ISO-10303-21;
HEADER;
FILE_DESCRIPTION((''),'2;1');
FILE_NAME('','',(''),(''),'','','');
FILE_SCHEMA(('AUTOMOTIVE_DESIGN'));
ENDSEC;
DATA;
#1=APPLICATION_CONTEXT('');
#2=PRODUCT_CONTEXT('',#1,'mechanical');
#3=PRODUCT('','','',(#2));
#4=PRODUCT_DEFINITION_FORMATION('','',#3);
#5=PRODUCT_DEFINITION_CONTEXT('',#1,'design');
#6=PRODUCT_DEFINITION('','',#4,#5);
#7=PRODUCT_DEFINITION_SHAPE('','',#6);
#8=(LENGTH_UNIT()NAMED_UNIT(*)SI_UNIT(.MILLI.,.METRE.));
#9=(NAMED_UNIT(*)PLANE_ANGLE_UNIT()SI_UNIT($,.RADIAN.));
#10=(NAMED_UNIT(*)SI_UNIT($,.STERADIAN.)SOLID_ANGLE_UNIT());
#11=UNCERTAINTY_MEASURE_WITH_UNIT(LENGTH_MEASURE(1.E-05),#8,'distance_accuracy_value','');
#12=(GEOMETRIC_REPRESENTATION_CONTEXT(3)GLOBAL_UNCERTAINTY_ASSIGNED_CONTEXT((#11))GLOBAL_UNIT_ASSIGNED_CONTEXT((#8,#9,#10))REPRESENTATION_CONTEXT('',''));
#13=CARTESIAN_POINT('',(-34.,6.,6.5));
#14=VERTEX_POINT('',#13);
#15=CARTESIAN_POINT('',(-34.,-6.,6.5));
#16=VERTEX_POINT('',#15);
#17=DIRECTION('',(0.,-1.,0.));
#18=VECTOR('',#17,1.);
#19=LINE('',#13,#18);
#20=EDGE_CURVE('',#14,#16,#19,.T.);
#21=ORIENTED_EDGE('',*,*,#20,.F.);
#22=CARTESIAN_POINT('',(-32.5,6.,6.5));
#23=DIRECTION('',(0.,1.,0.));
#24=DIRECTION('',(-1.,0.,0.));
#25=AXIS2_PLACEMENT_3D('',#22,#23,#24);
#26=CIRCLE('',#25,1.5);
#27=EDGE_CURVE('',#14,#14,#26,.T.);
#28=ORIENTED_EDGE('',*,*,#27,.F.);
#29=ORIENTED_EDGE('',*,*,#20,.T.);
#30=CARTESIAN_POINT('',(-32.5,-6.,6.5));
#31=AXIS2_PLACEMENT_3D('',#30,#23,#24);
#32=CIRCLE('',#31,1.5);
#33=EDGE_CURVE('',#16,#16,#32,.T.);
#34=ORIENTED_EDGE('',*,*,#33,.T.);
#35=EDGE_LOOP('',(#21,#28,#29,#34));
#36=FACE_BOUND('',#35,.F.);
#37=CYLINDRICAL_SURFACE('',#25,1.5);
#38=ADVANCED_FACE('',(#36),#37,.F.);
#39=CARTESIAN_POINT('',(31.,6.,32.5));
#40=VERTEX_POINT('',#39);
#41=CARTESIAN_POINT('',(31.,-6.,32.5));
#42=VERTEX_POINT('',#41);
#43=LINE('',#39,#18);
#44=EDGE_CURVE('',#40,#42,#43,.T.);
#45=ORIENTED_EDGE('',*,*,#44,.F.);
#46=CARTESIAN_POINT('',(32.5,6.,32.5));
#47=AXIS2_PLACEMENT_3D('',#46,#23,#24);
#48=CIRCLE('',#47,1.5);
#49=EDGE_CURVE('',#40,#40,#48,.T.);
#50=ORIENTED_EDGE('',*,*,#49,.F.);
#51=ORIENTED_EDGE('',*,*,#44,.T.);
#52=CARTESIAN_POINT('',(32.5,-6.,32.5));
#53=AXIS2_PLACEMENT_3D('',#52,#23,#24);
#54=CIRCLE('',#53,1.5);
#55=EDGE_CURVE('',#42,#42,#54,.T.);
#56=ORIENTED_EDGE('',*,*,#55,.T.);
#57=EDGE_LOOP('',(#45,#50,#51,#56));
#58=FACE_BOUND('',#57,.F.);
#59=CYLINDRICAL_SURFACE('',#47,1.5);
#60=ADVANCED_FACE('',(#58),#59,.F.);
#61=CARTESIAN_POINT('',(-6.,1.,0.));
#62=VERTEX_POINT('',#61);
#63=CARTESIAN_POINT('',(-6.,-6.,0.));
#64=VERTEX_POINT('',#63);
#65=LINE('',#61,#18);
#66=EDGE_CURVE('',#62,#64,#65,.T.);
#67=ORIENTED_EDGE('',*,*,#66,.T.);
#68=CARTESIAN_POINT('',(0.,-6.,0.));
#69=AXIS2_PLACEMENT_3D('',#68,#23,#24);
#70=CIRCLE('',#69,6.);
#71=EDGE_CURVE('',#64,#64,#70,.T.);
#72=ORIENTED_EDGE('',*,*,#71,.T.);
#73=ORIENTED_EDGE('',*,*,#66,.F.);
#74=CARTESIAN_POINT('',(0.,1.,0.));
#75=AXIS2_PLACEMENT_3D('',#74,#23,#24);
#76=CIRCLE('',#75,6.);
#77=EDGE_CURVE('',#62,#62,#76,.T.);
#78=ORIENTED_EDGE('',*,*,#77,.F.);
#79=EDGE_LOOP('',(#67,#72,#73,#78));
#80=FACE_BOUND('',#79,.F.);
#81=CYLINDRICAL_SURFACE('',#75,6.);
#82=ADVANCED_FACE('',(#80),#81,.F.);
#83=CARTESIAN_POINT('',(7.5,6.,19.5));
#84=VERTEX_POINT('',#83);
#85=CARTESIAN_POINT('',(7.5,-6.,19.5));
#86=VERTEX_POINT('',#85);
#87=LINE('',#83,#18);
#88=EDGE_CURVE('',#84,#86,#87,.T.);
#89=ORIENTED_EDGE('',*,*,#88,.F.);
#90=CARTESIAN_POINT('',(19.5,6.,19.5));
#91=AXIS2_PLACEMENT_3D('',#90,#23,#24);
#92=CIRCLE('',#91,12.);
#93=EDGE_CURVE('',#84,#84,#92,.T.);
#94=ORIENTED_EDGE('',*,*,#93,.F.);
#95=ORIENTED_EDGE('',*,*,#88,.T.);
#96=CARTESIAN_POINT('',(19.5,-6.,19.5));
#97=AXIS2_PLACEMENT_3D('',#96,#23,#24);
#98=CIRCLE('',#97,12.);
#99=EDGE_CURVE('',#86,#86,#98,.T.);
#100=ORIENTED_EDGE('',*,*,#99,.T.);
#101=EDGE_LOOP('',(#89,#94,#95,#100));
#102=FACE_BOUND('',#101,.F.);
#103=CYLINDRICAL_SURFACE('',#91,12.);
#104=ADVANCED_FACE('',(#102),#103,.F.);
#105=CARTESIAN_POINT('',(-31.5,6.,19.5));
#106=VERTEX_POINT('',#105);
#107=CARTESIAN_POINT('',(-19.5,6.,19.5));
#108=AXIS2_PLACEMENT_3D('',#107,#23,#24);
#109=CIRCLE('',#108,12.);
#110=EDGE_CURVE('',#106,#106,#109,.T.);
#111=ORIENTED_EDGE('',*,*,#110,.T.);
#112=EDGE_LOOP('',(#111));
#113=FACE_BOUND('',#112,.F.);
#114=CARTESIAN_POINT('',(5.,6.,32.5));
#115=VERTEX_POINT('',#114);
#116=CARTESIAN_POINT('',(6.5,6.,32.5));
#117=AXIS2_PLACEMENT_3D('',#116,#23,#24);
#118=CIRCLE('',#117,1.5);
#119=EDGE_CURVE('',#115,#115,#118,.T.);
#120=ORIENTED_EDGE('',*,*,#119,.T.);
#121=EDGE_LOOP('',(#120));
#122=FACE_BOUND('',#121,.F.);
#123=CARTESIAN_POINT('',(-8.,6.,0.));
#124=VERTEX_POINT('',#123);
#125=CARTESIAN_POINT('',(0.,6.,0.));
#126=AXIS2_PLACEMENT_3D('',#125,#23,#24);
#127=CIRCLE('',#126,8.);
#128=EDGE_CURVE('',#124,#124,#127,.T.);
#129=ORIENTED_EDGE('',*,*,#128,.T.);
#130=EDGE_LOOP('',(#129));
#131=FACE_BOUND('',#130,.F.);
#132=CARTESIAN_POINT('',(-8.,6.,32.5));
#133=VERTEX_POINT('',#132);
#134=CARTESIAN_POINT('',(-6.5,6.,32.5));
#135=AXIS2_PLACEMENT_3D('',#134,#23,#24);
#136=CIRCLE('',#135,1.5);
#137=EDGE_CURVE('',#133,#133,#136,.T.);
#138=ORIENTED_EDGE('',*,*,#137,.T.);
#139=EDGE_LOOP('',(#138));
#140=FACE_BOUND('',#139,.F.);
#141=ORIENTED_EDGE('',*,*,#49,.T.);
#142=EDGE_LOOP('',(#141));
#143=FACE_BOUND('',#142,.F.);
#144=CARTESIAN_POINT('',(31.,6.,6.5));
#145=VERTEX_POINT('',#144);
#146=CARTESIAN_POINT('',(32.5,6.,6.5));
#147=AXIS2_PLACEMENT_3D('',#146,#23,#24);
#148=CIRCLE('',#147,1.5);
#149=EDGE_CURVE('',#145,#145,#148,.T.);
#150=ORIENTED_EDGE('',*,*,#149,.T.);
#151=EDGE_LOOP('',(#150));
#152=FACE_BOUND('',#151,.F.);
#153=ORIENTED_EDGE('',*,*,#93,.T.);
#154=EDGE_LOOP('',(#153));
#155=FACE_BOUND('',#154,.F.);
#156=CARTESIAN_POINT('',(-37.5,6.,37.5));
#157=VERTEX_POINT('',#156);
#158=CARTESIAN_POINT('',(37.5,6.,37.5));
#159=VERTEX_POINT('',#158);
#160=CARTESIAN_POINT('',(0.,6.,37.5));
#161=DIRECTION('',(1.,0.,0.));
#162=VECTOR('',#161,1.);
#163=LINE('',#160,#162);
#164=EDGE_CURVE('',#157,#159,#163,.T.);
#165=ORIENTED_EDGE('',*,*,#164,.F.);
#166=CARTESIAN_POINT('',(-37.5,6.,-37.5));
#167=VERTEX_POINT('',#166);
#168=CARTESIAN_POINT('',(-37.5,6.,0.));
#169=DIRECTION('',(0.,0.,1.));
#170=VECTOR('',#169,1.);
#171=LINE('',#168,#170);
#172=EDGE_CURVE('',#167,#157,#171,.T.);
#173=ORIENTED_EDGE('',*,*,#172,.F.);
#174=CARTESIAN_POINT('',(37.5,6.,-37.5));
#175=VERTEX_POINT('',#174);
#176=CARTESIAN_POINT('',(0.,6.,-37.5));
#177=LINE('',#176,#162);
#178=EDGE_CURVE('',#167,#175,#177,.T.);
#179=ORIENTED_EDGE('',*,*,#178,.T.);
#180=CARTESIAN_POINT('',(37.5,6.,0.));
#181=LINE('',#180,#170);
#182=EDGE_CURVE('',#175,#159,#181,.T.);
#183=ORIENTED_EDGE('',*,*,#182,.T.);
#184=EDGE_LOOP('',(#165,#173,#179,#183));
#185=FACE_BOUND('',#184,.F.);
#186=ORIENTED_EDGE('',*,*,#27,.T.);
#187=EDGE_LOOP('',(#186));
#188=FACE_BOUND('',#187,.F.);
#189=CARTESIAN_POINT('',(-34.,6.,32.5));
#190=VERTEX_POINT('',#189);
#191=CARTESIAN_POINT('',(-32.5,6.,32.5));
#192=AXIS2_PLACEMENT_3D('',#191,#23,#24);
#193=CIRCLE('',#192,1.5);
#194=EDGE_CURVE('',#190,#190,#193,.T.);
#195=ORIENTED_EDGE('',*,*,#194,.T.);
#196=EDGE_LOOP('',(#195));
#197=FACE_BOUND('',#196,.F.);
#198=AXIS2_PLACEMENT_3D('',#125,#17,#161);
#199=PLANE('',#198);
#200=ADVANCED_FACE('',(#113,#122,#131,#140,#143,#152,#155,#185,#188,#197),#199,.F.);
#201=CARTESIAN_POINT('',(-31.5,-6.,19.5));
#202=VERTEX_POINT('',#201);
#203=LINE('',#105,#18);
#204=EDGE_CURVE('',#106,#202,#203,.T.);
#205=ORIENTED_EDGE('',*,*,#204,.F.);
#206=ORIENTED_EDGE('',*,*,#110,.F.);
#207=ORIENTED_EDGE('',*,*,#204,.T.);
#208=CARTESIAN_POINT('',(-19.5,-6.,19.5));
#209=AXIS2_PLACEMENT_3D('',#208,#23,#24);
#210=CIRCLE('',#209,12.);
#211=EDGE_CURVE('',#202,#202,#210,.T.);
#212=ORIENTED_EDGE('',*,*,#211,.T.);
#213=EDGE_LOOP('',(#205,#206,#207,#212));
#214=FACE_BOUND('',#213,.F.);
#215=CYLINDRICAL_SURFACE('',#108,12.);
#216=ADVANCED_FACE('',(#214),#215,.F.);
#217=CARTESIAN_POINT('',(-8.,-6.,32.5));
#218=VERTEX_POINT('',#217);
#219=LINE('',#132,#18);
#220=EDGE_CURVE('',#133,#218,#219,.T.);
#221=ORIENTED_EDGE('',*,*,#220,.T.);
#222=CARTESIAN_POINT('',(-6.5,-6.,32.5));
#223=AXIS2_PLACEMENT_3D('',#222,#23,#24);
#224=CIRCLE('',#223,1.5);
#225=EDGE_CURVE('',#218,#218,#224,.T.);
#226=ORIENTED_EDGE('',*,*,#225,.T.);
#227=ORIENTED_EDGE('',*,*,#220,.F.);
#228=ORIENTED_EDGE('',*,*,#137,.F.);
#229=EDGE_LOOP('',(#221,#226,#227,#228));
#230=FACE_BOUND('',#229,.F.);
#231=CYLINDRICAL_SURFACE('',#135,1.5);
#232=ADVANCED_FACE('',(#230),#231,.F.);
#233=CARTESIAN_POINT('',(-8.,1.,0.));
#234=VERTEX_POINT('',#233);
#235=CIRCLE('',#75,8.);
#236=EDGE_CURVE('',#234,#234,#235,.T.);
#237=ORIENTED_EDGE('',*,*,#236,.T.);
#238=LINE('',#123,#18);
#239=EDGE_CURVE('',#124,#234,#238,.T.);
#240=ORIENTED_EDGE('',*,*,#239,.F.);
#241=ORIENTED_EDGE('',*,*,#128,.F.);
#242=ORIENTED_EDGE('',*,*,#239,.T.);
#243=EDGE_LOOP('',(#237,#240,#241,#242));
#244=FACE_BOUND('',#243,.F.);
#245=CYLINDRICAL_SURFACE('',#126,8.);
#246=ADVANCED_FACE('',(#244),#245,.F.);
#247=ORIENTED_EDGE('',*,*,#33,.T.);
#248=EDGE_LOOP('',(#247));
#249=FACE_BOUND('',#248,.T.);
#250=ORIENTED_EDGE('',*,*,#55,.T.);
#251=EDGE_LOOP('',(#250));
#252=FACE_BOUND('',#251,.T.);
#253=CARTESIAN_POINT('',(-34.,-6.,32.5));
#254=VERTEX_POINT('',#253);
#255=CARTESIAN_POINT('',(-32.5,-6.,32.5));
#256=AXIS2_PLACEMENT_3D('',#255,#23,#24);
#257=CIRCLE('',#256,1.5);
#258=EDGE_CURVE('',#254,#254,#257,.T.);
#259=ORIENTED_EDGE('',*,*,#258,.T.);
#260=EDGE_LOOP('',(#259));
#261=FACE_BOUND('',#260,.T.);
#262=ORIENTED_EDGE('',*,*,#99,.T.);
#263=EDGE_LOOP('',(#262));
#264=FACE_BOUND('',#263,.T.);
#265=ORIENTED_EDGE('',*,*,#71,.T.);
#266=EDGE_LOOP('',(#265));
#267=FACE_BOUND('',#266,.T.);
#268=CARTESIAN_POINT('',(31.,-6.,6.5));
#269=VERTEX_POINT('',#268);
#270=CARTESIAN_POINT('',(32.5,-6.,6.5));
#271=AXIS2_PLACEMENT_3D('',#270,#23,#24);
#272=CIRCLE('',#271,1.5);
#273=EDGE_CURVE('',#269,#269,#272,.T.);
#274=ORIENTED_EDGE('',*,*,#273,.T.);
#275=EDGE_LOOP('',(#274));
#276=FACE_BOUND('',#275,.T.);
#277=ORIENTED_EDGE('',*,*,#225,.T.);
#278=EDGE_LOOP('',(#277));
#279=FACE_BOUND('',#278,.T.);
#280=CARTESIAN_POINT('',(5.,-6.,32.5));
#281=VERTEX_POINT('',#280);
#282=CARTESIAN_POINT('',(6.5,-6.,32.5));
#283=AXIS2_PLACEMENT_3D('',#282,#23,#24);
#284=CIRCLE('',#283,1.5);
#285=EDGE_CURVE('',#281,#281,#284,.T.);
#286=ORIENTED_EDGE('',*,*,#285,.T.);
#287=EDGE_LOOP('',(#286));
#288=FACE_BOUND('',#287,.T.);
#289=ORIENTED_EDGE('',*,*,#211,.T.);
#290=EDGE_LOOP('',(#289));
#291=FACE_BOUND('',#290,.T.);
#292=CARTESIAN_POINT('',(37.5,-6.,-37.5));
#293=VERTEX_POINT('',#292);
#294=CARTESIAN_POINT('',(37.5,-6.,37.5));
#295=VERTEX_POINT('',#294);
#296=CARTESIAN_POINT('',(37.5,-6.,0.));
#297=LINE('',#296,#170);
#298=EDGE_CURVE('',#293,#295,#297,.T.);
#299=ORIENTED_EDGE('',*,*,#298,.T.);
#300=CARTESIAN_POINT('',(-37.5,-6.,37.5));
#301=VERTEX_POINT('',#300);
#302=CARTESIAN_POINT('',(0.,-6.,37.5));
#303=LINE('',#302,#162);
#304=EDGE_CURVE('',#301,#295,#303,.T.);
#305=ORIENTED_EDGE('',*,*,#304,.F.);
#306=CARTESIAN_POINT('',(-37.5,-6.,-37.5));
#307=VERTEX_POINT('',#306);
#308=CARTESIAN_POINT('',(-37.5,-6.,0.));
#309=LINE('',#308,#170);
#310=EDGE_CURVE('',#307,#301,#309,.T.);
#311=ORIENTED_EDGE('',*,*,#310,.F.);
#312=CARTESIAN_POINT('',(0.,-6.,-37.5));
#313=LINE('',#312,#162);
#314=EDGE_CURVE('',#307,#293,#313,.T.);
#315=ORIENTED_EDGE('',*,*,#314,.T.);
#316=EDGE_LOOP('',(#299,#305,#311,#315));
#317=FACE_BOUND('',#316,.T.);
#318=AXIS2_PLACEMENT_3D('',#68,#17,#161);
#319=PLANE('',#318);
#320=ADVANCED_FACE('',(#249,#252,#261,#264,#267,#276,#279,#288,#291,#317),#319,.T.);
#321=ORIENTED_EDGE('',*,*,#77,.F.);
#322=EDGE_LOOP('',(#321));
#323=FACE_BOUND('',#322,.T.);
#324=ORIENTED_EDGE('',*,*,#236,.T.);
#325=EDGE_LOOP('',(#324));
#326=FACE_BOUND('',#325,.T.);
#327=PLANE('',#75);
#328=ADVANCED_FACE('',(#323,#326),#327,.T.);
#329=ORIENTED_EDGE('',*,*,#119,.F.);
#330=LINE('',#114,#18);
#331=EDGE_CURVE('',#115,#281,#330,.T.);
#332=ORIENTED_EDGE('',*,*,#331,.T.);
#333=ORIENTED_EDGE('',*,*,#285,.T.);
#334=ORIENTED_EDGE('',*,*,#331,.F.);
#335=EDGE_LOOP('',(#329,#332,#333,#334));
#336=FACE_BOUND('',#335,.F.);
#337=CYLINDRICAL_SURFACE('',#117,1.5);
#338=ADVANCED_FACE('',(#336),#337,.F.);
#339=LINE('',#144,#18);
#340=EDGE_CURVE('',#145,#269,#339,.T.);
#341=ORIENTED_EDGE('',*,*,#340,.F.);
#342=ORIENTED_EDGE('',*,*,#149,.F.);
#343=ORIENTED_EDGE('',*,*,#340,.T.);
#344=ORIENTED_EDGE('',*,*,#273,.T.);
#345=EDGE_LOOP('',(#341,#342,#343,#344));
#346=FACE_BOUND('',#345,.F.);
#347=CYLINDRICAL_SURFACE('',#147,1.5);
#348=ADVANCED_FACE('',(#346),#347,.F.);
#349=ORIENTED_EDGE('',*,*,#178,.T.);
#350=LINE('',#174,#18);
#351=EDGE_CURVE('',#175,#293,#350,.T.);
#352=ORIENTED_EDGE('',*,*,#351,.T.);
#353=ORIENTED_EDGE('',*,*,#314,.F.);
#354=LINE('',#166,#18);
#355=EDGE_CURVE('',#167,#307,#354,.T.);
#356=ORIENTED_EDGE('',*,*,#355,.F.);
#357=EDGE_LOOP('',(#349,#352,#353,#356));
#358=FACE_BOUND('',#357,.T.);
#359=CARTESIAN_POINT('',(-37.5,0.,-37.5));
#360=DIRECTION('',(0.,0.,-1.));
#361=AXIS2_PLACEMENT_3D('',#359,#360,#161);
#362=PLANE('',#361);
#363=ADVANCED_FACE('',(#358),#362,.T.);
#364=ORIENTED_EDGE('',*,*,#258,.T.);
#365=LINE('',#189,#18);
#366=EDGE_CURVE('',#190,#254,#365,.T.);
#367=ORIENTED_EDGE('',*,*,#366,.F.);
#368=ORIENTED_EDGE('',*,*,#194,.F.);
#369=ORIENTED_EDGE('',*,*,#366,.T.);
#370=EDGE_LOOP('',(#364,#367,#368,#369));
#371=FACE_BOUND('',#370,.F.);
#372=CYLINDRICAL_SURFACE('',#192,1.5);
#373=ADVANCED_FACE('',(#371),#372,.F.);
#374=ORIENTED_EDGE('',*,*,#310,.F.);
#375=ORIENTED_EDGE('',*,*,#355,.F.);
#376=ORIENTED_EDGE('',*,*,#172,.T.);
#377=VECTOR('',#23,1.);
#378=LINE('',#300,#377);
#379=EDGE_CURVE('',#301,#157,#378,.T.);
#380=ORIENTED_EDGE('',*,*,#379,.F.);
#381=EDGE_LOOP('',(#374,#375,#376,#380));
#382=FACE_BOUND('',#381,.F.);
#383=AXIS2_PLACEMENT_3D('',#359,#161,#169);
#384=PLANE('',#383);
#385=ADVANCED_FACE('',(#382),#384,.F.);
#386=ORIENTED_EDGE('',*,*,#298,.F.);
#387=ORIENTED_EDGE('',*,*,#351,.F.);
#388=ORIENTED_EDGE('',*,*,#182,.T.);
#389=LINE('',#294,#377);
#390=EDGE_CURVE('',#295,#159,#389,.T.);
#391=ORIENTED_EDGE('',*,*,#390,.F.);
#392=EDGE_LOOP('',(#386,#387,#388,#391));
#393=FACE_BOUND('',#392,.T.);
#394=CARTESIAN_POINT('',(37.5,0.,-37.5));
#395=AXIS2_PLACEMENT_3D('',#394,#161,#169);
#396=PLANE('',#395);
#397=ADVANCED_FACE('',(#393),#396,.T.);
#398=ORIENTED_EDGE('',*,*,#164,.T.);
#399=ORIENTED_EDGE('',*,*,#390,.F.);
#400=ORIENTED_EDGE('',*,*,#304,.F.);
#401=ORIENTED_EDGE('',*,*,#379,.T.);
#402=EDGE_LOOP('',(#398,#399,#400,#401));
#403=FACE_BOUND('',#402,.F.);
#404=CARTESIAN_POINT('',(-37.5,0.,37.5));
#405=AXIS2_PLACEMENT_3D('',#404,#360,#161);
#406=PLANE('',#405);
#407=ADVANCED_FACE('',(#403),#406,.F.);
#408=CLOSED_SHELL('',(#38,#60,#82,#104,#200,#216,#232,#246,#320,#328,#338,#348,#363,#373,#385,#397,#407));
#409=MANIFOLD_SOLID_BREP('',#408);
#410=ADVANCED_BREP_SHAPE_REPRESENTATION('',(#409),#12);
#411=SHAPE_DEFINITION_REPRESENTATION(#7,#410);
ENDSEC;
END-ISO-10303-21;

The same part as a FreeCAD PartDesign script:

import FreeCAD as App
import Part
import Sketcher
from FreeCAD import Vector
Q = App.Units.Quantity


def add_polygon(sketch, points):
    """Adds a closed chain of lines whose ends are joined by coincident constraints."""
    first, n = sketch.GeometryCount, len(points)
    for a, b in zip(points, points[1:] + points[:1]):
        sketch.addGeometry(Part.LineSegment(App.Vector(*a, 0), App.Vector(*b, 0)), False)
    for i in range(n):
        sketch.addConstraint(Sketcher.Constraint("Coincident", first + i, 2, first + (i + 1) % n, 1))

doc = App.newDocument("Part")
body = doc.addObject("PartDesign::Body", "Body")

sketch1 = body.newObject("Sketcher::SketchObject", "Sketch")
sketch1.AttachmentSupport = (doc.getObject("XZ_Plane"), [""])
sketch1.MapMode = "FlatFace"
add_polygon(sketch1, [(-37.5, 37.5), (-37.5, -37.5), (37.5, -37.5), (37.5, 37.5)])
sketch1.addConstraint([
    Sketcher.Constraint("Vertical", 0),
    Sketcher.Constraint("Horizontal", 1),
    Sketcher.Constraint("Vertical", 2),
    Sketcher.Constraint("Horizontal", 3),
    Sketcher.Constraint("Symmetric", 0, 2, 2, 2, -1, 1),
    Sketcher.Constraint("Equal", 3, 0),
    Sketcher.Constraint("DistanceX", 1, 1, 1, 2, Q("75 mm")),
])
pad1 = body.newObject("PartDesign::Pad", "Pad")
pad1.Profile = sketch1
pad1.Length = 12
pad1.Midplane = True

sketch2 = body.newObject("Sketcher::SketchObject", "Sketch001")
sketch2.AttachmentSupport = (doc.getObject("XZ_Plane"), [""])
sketch2.MapMode = "FlatFace"
sketch2.AttachmentOffset = App.Placement(Vector(0, 0, -6), App.Rotation())
sketch2.addGeometry([
    Part.Circle(Vector(19.5, 19.5, 0), Vector(0, 0, 1), 12),
    Part.Circle(Vector(32.5, 32.5, 0), Vector(0, 0, 1), 1.5),
    Part.Circle(Vector(32.5, 6.5, 0), Vector(0, 0, 1), 1.5),
    Part.Circle(Vector(6.5, 32.5, 0), Vector(0, 0, 1), 1.5),
    Part.Circle(Vector(-32.5, 6.5, 0), Vector(0, 0, 1), 1.5),
    Part.Circle(Vector(-32.5, 32.5, 0), Vector(0, 0, 1), 1.5),
    Part.Circle(Vector(-19.5, 19.5, 0), Vector(0, 0, 1), 12),
    Part.Circle(Vector(-6.5, 32.5, 0), Vector(0, 0, 1), 1.5),
], False)
sketch2.addConstraint([
    Sketcher.Constraint("Equal", 1, 2),
    Sketcher.Constraint("Equal", 2, 3),
    Sketcher.Constraint("Equal", 3, 4),
    Sketcher.Constraint("Equal", 4, 5),
    Sketcher.Constraint("Equal", 0, 6),
    Sketcher.Constraint("Equal", 5, 7),
    Sketcher.Constraint("Symmetric", 2, 3, 4, 3, -2),
    Sketcher.Constraint("Symmetric", 1, 3, 5, 3, -2),
    Sketcher.Constraint("Symmetric", 0, 3, 6, 3, -2),
    Sketcher.Constraint("Symmetric", 3, 3, 7, 3, -2),
    Sketcher.Constraint("Horizontal", 1, 3, 3, 3),
    Sketcher.Constraint("Vertical", 1, 3, 2, 3),
    Sketcher.Constraint("Diameter", 0, Q("24 mm")),
    Sketcher.Constraint("Diameter", 1, Q("3 mm")),
    Sketcher.Constraint("DistanceX", 0, 3, 1, 3, Q("13 mm")),
    Sketcher.Constraint("DistanceY", 0, 3, 1, 3, Q("13 mm")),
    Sketcher.Constraint("DistanceY", 2, 3, 0, 3, Q("13 mm")),
    Sketcher.Constraint("DistanceX", 3, 3, 0, 3, Q("13 mm")),
    Sketcher.Constraint("DistanceX", 4, 3, 3, 3, Q("39 mm")),
    Sketcher.Constraint("DistanceY", -1, 1, 0, 3, Q("19.5 mm")),
])
pocket1 = body.newObject("PartDesign::Pocket", "Pocket")
pocket1.Profile = sketch2
pocket1.Type = "ThroughAll"
pocket1.Reversed = True

sketch3 = body.newObject("Sketcher::SketchObject", "Sketch002")
sketch3.AttachmentSupport = (doc.getObject("XZ_Plane"), [""])
sketch3.MapMode = "FlatFace"
sketch3.AttachmentOffset = App.Placement(Vector(0, 0, -6), App.Rotation())
sketch3.addGeometry(Part.Circle(Vector(0, 0, 0), Vector(0, 0, 1), 8), False)
sketch3.addConstraint([
    Sketcher.Constraint("Coincident", 0, 3, -1, 1),
    Sketcher.Constraint("Diameter", 0, Q("16 mm")),
])
pocket2 = body.newObject("PartDesign::Pocket", "Pocket001")
pocket2.Profile = sketch3
pocket2.Length = 5
pocket2.Reversed = True

sketch4 = body.newObject("Sketcher::SketchObject", "Sketch003")
sketch4.AttachmentSupport = (doc.getObject("XZ_Plane"), [""])
sketch4.MapMode = "FlatFace"
sketch4.AttachmentOffset = App.Placement(Vector(0, 0, -1), App.Rotation())
sketch4.addGeometry(Part.Circle(Vector(0, 0, 0), Vector(0, 0, 1), 6), False)
sketch4.addConstraint([
    Sketcher.Constraint("Coincident", 0, 3, -1, 1),
    Sketcher.Constraint("Diameter", 0, Q("12 mm")),
])
pocket3 = body.newObject("PartDesign::Pocket", "Pocket002")
pocket3.Profile = sketch4
pocket3.Type = "ThroughAll"
pocket3.Reversed = True

doc.recompute()
